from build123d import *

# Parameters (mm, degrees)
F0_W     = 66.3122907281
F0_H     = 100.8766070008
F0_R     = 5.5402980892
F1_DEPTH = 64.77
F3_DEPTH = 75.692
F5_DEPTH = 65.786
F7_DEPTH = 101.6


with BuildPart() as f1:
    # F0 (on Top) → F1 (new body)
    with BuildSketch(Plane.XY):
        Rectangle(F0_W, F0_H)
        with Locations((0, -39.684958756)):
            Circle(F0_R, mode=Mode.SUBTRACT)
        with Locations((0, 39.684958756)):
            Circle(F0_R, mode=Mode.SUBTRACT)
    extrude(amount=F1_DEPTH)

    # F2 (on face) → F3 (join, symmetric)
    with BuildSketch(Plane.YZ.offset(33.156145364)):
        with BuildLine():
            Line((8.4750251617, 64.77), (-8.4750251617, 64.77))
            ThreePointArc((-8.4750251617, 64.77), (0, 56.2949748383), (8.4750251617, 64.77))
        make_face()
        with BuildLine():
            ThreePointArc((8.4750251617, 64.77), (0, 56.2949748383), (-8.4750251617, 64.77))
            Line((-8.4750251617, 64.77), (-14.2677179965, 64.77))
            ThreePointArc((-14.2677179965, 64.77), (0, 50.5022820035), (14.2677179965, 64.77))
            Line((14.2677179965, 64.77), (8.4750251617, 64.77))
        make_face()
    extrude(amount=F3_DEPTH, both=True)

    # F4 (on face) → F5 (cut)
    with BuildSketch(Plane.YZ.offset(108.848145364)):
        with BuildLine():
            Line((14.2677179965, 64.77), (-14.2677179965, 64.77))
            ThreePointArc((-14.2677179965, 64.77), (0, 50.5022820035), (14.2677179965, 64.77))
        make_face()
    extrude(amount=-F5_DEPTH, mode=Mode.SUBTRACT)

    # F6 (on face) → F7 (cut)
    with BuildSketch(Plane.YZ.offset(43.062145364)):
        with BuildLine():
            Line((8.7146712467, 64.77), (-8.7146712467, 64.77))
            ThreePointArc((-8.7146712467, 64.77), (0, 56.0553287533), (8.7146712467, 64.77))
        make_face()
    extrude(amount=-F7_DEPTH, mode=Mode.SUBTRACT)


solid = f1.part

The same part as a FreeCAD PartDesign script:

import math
import FreeCAD as App
import Part
import Sketcher

V = App.Vector
Q = App.Units.Quantity

doc = App.newDocument("Part")
body = doc.addObject("PartDesign::Body", "Body")

# Sketch on XY plane
sketch1 = body.newObject("Sketcher::SketchObject", "Sketch")
sketch1.AttachmentSupport = (doc.getObject("XY_Plane"), [""])
sketch1.MapMode = "FlatFace"
sketch1.addGeometry([
    Part.LineSegment(V(-33, 50, 0), V(-33, -50, 0)),  # 0
    Part.LineSegment(V(-33, -50, 0), V(33, -50, 0)),  # 1
    Part.LineSegment(V(33, -50, 0), V(33, 50, 0)),  # 2
    Part.LineSegment(V(33, 50, 0), V(-33, 50, 0)),  # 3
    Part.Circle(V(0, -40, 0), V(0, 0, 1), 6),  # 4
    Part.Circle(V(0, 40, 0), V(0, 0, 1), 6),  # 5
], False)
sketch1.addConstraint([
    Sketcher.Constraint("Coincident", 0, 2, 1, 1),
    Sketcher.Constraint("Coincident", 1, 2, 2, 1),
    Sketcher.Constraint("Coincident", 2, 2, 3, 1),
    Sketcher.Constraint("Coincident", 3, 2, 0, 1),
    Sketcher.Constraint("Vertical", 0),
    Sketcher.Constraint("Horizontal", 1),
    Sketcher.Constraint("Vertical", 2),
    Sketcher.Constraint("Horizontal", 3),
    Sketcher.Constraint("Equal", 4, 5),
    Sketcher.Constraint("Symmetric", 4, 3, 5, 3, -1, 1),
    Sketcher.Constraint("Symmetric", 0, 2, 2, 2, -1, 1),
    Sketcher.Constraint("PointOnObject", 4, 3, -2),
    Sketcher.Constraint("Diameter", 4, 11.080596),
    Sketcher.Constraint("DistanceY", 4, 3, -1, 1, Q("1.5624 in")),
    Sketcher.Constraint("DistanceX", 1, 1, 1, 2, 66.312291),
    Sketcher.Constraint("DistanceY", 0, 2, 0, 1, 100.876607),
])
pad1 = body.newObject("PartDesign::Pad", "Pad")
pad1.Profile = sketch1
pad1.Length = Q("2.55 in")

# Sketch on YZ plane
sketch2 = body.newObject("Sketcher::SketchObject", "Sketch001")
sketch2.AttachmentSupport = (doc.getObject("YZ_Plane"), [""])
sketch2.MapMode = "FlatFace"
sketch2.AttachmentOffset = App.Placement(V(0, 0, 33.156145), App.Rotation())
sketch2.addGeometry([
    Part.ArcOfCircle(Part.Circle(V(0, 65, 0), V(0, 0, 1), 14), math.radians(180), math.radians(360)),
    Part.LineSegment(V(14, 65, 0), V(-14, 65, 0)),
], False)
sketch2.addConstraint([
    Sketcher.Constraint("Coincident", 0, 1, 1, 2),
    Sketcher.Constraint("Coincident", 1, 1, 0, 2),
    Sketcher.Constraint("Horizontal", 1),
    Sketcher.Constraint("PointOnObject", 0, 3, -2),
    Sketcher.Constraint("DistanceY", -1, 1, 0, 3, Q("2.55 in")),
    Sketcher.Constraint("DistanceY", -1, 1, 0, 1, Q("2.55 in")),
    Sketcher.Constraint("Radius", 0, 14.267718),
])
pad2 = body.newObject("PartDesign::Pad", "Pad001")
pad2.Profile = sketch2
pad2.Length = Q("5.96 in")
pad2.Midplane = True

# Sketch on YZ plane
sketch3 = body.newObject("Sketcher::SketchObject", "Sketch002")
sketch3.AttachmentSupport = (doc.getObject("YZ_Plane"), [""])
sketch3.MapMode = "FlatFace"
sketch3.AttachmentOffset = App.Placement(V(0, 0, 108.848145), App.Rotation())
sketch3.addGeometry([
    Part.LineSegment(V(14, 65, 0), V(-14, 65, 0)),
    Part.ArcOfCircle(Part.Circle(V(0, 65, 0), V(0, 0, 1), 14), math.radians(180), math.radians(360)),
], False)
sketch3.addConstraint([
    Sketcher.Constraint("Coincident", 0, 1, 1, 2),
    Sketcher.Constraint("Coincident", 1, 1, 0, 2),
    Sketcher.Constraint("Horizontal", 0),
    Sketcher.Constraint("PointOnObject", 1, 3, -2),
    Sketcher.Constraint("Horizontal", 1, 3, 0, 1),
    Sketcher.Constraint("DistanceY", -1, 1, 1, 3, Q("2.55 in")),
    Sketcher.Constraint("Radius", 1, 14.267718),
])
pocket1 = body.newObject("PartDesign::Pocket", "Pocket")
pocket1.Profile = sketch3
pocket1.Length = Q("2.59 in")

# Sketch on YZ plane
sketch4 = body.newObject("Sketcher::SketchObject", "Sketch003")
sketch4.AttachmentSupport = (doc.getObject("YZ_Plane"), [""])
sketch4.MapMode = "FlatFace"
sketch4.AttachmentOffset = App.Placement(V(0, 0, 43.062145), App.Rotation())
sketch4.addGeometry([
    Part.LineSegment(V(9, 65, 0), V(-9, 65, 0)),
    Part.ArcOfCircle(Part.Circle(V(0, 65, 0), V(0, 0, 1), 9), math.radians(180), math.radians(360)),
], False)
sketch4.addConstraint([
    Sketcher.Constraint("Coincident", 0, 1, 1, 2),
    Sketcher.Constraint("Coincident", 1, 1, 0, 2),
    Sketcher.Constraint("Horizontal", 0),
    Sketcher.Constraint("PointOnObject", 1, 3, -2),
    Sketcher.Constraint("Horizontal", 1, 3, 0, 1),
    Sketcher.Constraint("DistanceY", -1, 1, 1, 3, Q("2.55 in")),
    Sketcher.Constraint("Radius", 1, 8.714671),
])
pocket2 = body.newObject("PartDesign::Pocket", "Pocket001")
pocket2.Profile = sketch4
pocket2.Length = Q("4 in")

doc.recompute()
